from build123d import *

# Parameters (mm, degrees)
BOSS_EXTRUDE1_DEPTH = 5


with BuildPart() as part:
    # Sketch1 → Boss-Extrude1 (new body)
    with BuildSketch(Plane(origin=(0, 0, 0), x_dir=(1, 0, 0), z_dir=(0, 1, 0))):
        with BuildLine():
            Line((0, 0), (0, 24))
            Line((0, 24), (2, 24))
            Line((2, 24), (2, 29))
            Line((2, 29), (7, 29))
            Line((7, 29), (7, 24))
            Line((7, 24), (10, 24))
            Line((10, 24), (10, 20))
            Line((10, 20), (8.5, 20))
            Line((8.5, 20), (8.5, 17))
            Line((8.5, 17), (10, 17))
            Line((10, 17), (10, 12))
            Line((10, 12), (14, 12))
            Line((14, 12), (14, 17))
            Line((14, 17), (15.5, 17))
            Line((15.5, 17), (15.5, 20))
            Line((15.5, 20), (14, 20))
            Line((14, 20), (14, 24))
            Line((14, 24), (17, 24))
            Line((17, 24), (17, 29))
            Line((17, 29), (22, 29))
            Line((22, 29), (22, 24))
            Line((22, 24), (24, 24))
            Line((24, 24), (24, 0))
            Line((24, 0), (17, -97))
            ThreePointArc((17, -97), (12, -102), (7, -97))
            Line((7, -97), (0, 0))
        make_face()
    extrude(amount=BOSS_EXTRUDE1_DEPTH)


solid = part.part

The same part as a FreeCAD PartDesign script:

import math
import FreeCAD as App
import Part
import Sketcher

doc = App.newDocument("Part")
body = doc.addObject("PartDesign::Body", "Body")

sketch1 = body.newObject("Sketcher::SketchObject", "Sketch")
sketch1.AttachmentSupport = (doc.getObject("XZ_Plane"), [""])
sketch1.MapMode = "FlatFace"
sketch1.addGeometry([
    Part.LineSegment(App.Vector(0, -24, 0), App.Vector(0, 0, 0)),
    Part.LineSegment(App.Vector(0, 0, 0), App.Vector(7, 97, 0)),
    Part.ArcOfCircle(Part.Circle(App.Vector(12, 97, 0), App.Vector(0, 0, 1), 5), math.radians(0), math.radians(180)),
    Part.LineSegment(App.Vector(17, 97, 0), App.Vector(24, 0, 0)),
    Part.LineSegment(App.Vector(24, 0, 0), App.Vector(24, -24, 0)),
    Part.LineSegment(App.Vector(24, -24, 0), App.Vector(22, -24, 0)),
    Part.LineSegment(App.Vector(22, -24, 0), App.Vector(22, -29, 0)),
    Part.LineSegment(App.Vector(22, -29, 0), App.Vector(17, -29, 0)),
    Part.LineSegment(App.Vector(17, -29, 0), App.Vector(17, -24, 0)),
    Part.LineSegment(App.Vector(17, -24, 0), App.Vector(14, -24, 0)),
    Part.LineSegment(App.Vector(14, -24, 0), App.Vector(14, -20, 0)),
    Part.LineSegment(App.Vector(14, -20, 0), App.Vector(15.5, -20, 0)),
    Part.LineSegment(App.Vector(15.5, -20, 0), App.Vector(15.5, -17, 0)),
    Part.LineSegment(App.Vector(15.5, -17, 0), App.Vector(14, -17, 0)),
    Part.LineSegment(App.Vector(14, -17, 0), App.Vector(14, -12, 0)),
    Part.LineSegment(App.Vector(14, -12, 0), App.Vector(10, -12, 0)),
    Part.LineSegment(App.Vector(10, -12, 0), App.Vector(10, -17, 0)),
    Part.LineSegment(App.Vector(10, -17, 0), App.Vector(8.5, -17, 0)),
    Part.LineSegment(App.Vector(8.5, -17, 0), App.Vector(8.5, -20, 0)),
    Part.LineSegment(App.Vector(8.5, -20, 0), App.Vector(10, -20, 0)),
    Part.LineSegment(App.Vector(10, -20, 0), App.Vector(10, -24, 0)),
    Part.LineSegment(App.Vector(10, -24, 0), App.Vector(7, -24, 0)),
    Part.LineSegment(App.Vector(7, -24, 0), App.Vector(7, -29, 0)),
    Part.LineSegment(App.Vector(7, -29, 0), App.Vector(2, -29, 0)),
    Part.LineSegment(App.Vector(2, -29, 0), App.Vector(2, -24, 0)),
    Part.LineSegment(App.Vector(2, -24, 0), App.Vector(0, -24, 0)),
], False)
sketch1.addConstraint([
    Sketcher.Constraint("Coincident", 0, 2, 1, 1),
    Sketcher.Constraint("Coincident", 1, 2, 2, 2),
    Sketcher.Constraint("Coincident", 2, 1, 3, 1),
    Sketcher.Constraint("Coincident", 3, 2, 4, 1),
    Sketcher.Constraint("Coincident", 4, 2, 5, 1),
    Sketcher.Constraint("Coincident", 5, 2, 6, 1),
    Sketcher.Constraint("Coincident", 6, 2, 7, 1),
    Sketcher.Constraint("Coincident", 7, 2, 8, 1),
    Sketcher.Constraint("Coincident", 8, 2, 9, 1),
    Sketcher.Constraint("Coincident", 9, 2, 10, 1),
    Sketcher.Constraint("Coincident", 10, 2, 11, 1),
    Sketcher.Constraint("Coincident", 11, 2, 12, 1),
    Sketcher.Constraint("Coincident", 12, 2, 13, 1),
    Sketcher.Constraint("Coincident", 13, 2, 14, 1),
    Sketcher.Constraint("Coincident", 14, 2, 15, 1),
    Sketcher.Constraint("Coincident", 15, 2, 16, 1),
    Sketcher.Constraint("Coincident", 16, 2, 17, 1),
    Sketcher.Constraint("Coincident", 17, 2, 18, 1),
    Sketcher.Constraint("Coincident", 18, 2, 19, 1),
    Sketcher.Constraint("Coincident", 19, 2, 20, 1),
    Sketcher.Constraint("Coincident", 20, 2, 21, 1),
    Sketcher.Constraint("Coincident", 21, 2, 22, 1),
    Sketcher.Constraint("Coincident", 22, 2, 23, 1),
    Sketcher.Constraint("Coincident", 23, 2, 24, 1),
    Sketcher.Constraint("Coincident", 24, 2, 25, 1),
    Sketcher.Constraint("Coincident", 25, 2, 0, 1),
    Sketcher.Constraint("Vertical", 0),
    Sketcher.Constraint("Vertical", 4),
    Sketcher.Constraint("Horizontal", 5),
    Sketcher.Constraint("Vertical", 6),
    Sketcher.Constraint("Horizontal", 7),
    Sketcher.Constraint("Vertical", 8),
    Sketcher.Constraint("Horizontal", 9),
    Sketcher.Constraint("Vertical", 10),
    Sketcher.Constraint("Horizontal", 11),
    Sketcher.Constraint("Vertical", 12),
    Sketcher.Constraint("Horizontal", 13),
    Sketcher.Constraint("Vertical", 14),
    Sketcher.Constraint("Horizontal", 15),
    Sketcher.Constraint("Vertical", 16),
    Sketcher.Constraint("Horizontal", 17),
    Sketcher.Constraint("Vertical", 18),
    Sketcher.Constraint("Horizontal", 19),
    Sketcher.Constraint("Vertical", 20),
    Sketcher.Constraint("Horizontal", 21),
    Sketcher.Constraint("Vertical", 22),
    Sketcher.Constraint("Horizontal", 23),
    Sketcher.Constraint("Vertical", 24),
    Sketcher.Constraint("Horizontal", 25),
    Sketcher.Constraint("Coincident", 0, 2, -1, 1),
    Sketcher.Constraint("PointOnObject", 3, 2, -1),
    Sketcher.Constraint("Horizontal", 2, 3, 1, 2),
    Sketcher.Constraint("Horizontal", 1, 2, 2, 1),
    Sketcher.Constraint("Horizontal", 5, 2, 8, 2),
    Sketcher.Constraint("Horizontal", 13, 2, 16, 2),
    Sketcher.Constraint("Horizontal", 11, 2, 18, 2),
    Sketcher.Constraint("Horizontal", 9, 2, 20, 2),
    Sketcher.Constraint("Horizontal", 7, 2, 22, 2),
    Sketcher.Constraint("Horizontal", 21, 2, 24, 2),
    Sketcher.Constraint("Vertical", 2, 1, 7, 2),
    Sketcher.Constraint("Vertical", 10, 2, 13, 2),
    Sketcher.Constraint("Vertical", 16, 2, 19, 2),
    Sketcher.Constraint("Vertical", 1, 2, 21, 2),
    Sketcher.Constraint("Equal", 13, 17),
    Sketcher.Constraint("Equal", 9, 21),
    Sketcher.Constraint("Equal", 7, 23),
    Sketcher.Constraint("Equal", 5, 25),
    Sketcher.Constraint("Equal", 23, 6),
    Sketcher.Constraint("Equal", 15, 10),
    Sketcher.Constraint("Equal", 21, 12),
    Sketcher.Constraint("Equal", 8, 14),
    Sketcher.Constraint("Radius", 2, 5.0),
    Sketcher.Constraint("DistanceX", 5, 2, 5, 1, 2.0),
    Sketcher.Constraint("DistanceX", 7, 2, 7, 1, 5.0),
    Sketcher.Constraint("DistanceX", 9, 2, 9, 1, 3.0),
    Sketcher.Constraint("DistanceY", 0, 1, 0, 2, 24.0),
    Sketcher.Constraint("DistanceX", 11, 1, 11, 2, 1.5),
    Sketcher.Constraint("DistanceY", -1, 1, 2, 3, 97.0),
])
pad1 = body.newObject("PartDesign::Pad", "Pad")
pad1.Profile = sketch1
pad1.Length = 5
pad1.Reversed = True

doc.recompute()
